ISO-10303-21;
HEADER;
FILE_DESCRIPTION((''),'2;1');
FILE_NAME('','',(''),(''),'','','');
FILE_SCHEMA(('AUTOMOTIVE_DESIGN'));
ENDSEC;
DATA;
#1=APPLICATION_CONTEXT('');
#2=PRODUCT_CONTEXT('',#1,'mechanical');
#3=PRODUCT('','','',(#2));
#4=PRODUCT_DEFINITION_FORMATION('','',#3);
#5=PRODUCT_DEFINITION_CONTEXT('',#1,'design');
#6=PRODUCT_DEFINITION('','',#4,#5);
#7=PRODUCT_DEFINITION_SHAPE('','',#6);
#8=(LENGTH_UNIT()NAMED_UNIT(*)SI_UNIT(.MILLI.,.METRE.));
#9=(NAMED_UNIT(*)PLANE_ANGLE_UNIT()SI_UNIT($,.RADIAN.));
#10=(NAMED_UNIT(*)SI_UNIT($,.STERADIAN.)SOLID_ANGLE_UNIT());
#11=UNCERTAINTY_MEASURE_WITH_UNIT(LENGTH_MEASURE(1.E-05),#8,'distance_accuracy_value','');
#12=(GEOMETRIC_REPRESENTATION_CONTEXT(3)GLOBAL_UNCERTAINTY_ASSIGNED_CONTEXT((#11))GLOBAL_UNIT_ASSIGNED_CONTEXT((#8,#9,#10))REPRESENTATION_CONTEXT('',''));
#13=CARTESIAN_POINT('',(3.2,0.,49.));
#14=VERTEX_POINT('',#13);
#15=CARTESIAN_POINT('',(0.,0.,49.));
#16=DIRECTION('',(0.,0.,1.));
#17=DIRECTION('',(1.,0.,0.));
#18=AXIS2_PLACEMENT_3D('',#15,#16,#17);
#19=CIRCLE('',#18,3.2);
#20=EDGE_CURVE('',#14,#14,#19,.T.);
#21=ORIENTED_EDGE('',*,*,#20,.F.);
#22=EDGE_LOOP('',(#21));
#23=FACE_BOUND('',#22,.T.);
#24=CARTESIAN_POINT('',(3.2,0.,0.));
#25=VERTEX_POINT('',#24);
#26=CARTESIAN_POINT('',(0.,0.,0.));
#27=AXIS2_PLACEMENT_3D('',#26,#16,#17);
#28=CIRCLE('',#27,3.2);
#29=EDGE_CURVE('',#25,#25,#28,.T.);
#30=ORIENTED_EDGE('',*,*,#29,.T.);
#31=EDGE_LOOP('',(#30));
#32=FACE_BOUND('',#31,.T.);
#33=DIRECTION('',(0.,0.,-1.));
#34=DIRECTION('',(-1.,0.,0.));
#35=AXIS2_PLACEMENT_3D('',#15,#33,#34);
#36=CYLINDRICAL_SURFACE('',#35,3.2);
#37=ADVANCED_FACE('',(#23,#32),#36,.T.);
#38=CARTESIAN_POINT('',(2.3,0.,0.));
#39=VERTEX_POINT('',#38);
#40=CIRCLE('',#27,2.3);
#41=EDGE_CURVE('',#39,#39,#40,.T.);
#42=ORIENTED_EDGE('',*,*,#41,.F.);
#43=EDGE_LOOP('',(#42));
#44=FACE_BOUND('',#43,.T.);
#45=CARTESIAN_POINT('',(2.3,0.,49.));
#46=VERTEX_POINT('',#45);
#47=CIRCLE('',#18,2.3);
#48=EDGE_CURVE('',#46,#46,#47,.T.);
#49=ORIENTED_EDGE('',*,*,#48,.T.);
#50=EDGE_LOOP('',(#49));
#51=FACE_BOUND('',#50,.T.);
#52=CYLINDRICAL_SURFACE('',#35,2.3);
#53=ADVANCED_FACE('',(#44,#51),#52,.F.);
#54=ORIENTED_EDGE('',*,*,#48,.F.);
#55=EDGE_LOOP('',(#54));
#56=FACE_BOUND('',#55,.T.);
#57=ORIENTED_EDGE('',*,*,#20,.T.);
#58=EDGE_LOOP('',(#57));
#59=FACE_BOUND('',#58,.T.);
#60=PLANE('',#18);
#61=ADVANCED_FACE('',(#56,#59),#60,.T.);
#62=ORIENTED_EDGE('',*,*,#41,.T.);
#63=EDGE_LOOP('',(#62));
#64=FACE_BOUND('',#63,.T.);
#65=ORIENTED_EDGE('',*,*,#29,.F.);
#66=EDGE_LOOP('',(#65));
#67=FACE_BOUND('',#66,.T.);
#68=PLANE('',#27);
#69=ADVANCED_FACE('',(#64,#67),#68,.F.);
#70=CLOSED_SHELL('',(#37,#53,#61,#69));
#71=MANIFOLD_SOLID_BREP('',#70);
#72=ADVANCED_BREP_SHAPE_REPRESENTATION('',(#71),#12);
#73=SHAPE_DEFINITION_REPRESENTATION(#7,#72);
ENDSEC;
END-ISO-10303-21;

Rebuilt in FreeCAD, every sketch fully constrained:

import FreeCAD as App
import Part
import Sketcher
from FreeCAD import Vector
Q = App.Units.Quantity

doc = App.newDocument("Part")
params = doc.addObject("Spreadsheet::Sheet", "Params")
for row, (alias, value) in enumerate([
    ("sketch1_diameter", "6.4 mm"),
    ("sketch1_diameter2", "4.6 mm"),
    ("pad1_length", "49 mm"),
], start=1):
    params.set(f"A{row}", alias)
    params.set(f"B{row}", "=" + value)
    params.setAlias(f"B{row}", alias)

body = doc.addObject("PartDesign::Body", "Body")

sketch1 = doc.addObject("Sketcher::SketchObject", "Sketch")
body.addObject(sketch1)
sketch1.AttachmentSupport = (doc.XY_Plane, [""])
sketch1.MapMode = "FlatFace"
sketch1.addGeometry([
    Part.Circle(Vector(0, 0, 0), Vector(0, 0, 1), 3.2),
    Part.Circle(Vector(0, 0, 0), Vector(0, 0, 1), 2.3),
], False)
sketch1.addConstraint([
    Sketcher.Constraint("Coincident", 0, 3, -1, 1),
    Sketcher.Constraint("Coincident", 1, 3, -1, 1),
    Sketcher.Constraint("Diameter", 0, Q("6.4 mm")),
    Sketcher.Constraint("Diameter", 1, Q("4.6 mm")),
])
sketch1.setExpression("Constraints[2]", "Params.sketch1_diameter")
sketch1.setExpression("Constraints[3]", "Params.sketch1_diameter2")
pad1 = doc.addObject("PartDesign::Pad", "Pad")
body.addObject(pad1)
pad1.Profile = sketch1
pad1.setExpression("Length", "Params.pad1_length")

doc.recompute()
